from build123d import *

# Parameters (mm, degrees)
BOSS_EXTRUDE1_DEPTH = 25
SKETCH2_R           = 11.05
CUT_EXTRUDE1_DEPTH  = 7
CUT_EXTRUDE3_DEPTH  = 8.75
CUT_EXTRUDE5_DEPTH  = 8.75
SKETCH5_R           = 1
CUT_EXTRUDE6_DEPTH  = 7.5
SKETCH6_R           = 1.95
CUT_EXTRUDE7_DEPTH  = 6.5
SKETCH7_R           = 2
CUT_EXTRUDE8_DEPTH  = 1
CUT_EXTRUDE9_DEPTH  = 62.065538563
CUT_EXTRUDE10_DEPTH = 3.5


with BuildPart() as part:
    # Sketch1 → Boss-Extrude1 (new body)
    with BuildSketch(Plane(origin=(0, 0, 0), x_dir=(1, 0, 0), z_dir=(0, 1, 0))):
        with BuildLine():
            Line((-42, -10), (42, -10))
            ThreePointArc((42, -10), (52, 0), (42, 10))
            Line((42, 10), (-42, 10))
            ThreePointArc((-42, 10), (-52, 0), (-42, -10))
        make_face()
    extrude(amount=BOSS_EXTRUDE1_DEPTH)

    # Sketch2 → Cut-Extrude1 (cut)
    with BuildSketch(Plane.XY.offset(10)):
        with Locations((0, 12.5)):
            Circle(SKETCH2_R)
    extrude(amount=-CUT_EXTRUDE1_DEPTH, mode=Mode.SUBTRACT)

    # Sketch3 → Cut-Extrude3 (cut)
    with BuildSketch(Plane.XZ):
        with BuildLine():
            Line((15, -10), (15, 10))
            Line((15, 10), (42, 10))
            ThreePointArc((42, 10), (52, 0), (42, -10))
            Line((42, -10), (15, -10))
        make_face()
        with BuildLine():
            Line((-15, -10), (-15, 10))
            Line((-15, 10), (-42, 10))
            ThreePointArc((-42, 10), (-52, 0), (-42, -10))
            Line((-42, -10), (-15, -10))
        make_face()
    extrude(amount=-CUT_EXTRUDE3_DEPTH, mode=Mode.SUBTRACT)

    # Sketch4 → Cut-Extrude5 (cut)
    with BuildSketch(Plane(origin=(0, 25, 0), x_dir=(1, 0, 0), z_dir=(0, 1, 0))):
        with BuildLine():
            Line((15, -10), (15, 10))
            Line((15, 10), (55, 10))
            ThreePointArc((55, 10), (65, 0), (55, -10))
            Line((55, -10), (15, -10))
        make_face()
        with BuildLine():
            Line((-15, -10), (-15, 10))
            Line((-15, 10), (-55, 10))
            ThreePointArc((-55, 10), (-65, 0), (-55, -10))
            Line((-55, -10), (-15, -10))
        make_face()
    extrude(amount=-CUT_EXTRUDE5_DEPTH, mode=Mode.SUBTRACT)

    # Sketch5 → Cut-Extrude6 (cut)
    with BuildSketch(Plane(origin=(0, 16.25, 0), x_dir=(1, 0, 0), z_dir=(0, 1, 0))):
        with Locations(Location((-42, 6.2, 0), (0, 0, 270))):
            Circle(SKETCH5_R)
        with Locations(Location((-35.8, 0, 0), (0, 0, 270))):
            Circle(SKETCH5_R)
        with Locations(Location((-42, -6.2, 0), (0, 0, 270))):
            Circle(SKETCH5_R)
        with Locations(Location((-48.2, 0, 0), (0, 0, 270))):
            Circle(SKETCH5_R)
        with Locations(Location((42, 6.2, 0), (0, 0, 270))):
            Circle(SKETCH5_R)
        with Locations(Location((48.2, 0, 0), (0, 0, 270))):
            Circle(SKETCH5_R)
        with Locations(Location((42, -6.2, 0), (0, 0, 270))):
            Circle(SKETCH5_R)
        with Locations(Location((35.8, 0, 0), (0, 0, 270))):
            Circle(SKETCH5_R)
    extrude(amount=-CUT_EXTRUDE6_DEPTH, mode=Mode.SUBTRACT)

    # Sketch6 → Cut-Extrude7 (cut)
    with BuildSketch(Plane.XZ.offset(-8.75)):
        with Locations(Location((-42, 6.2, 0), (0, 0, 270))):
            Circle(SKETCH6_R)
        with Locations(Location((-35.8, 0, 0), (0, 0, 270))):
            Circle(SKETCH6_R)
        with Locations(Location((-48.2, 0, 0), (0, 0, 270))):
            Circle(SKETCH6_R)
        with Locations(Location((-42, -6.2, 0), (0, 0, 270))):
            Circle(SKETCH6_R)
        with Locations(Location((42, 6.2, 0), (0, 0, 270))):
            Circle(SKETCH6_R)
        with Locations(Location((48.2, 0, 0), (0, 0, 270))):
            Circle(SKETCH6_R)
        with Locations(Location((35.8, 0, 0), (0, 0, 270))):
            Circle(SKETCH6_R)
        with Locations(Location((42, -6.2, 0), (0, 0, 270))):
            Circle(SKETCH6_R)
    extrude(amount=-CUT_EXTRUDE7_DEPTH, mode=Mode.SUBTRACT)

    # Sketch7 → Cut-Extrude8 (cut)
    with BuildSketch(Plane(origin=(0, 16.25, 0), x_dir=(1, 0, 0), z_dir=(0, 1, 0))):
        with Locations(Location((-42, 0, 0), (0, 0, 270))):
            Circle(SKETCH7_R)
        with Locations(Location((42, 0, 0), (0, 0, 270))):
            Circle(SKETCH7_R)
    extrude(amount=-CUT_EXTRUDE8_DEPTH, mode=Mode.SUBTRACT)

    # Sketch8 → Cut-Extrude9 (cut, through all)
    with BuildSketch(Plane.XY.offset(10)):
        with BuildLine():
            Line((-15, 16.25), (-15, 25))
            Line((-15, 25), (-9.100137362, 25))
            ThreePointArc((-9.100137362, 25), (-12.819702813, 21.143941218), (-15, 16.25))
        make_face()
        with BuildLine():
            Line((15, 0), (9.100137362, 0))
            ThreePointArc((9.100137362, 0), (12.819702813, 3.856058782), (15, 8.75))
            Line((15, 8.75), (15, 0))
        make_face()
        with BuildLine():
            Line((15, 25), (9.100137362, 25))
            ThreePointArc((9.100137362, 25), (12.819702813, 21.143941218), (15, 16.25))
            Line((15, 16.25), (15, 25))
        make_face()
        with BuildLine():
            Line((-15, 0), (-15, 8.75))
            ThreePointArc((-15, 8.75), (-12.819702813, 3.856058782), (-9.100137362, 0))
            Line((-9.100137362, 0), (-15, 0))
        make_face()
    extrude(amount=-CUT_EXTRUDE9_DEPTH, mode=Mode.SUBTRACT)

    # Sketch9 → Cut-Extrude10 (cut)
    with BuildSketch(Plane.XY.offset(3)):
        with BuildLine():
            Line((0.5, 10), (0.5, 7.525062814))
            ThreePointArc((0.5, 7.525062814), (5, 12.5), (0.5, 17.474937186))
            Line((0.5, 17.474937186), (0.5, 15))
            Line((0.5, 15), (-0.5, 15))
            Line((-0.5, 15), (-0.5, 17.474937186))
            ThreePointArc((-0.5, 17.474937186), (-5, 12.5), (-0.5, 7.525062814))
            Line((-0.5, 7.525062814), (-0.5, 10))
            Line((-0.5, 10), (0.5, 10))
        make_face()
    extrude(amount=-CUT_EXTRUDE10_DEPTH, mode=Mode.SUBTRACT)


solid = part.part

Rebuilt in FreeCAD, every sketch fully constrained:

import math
import FreeCAD as App
import Part
import Sketcher

doc = App.newDocument("Part")
body = doc.addObject("PartDesign::Body", "Body")

sketch1 = body.newObject("Sketcher::SketchObject", "Sketch")
sketch1.AttachmentSupport = (doc.getObject("XZ_Plane"), [""])
sketch1.MapMode = "FlatFace"
sketch1.addGeometry([
    Part.LineSegment(App.Vector(-42, 10, 0), App.Vector(42, 10, 0)),
    Part.ArcOfCircle(Part.Circle(App.Vector(42, 0, 0), App.Vector(0, 0, 1), 10), math.radians(-90), math.radians(90)),
    Part.LineSegment(App.Vector(42, -10, 0), App.Vector(-42, -10, 0)),
    Part.ArcOfCircle(Part.Circle(App.Vector(-42, 0, 0), App.Vector(0, 0, 1), 10), math.radians(90), math.radians(270)),
], False)
sketch1.addConstraint([
    Sketcher.Constraint("Tangent", 0, 2, 1, 2),
    Sketcher.Constraint("Tangent", 1, 1, 2, 1),
    Sketcher.Constraint("Tangent", 2, 2, 3, 2),
    Sketcher.Constraint("Tangent", 3, 1, 0, 1),
    Sketcher.Constraint("Horizontal", 0),
    Sketcher.Constraint("Horizontal", 2),
    Sketcher.Constraint("Symmetric", 1, 3, 3, 3, -1, 1),
    Sketcher.Constraint("Radius", 1, 10.0),
    Sketcher.Constraint("DistanceX", 0, 1, 0, 2, 84.0),
])
pad1 = body.newObject("PartDesign::Pad", "Pad")
pad1.Profile = sketch1
pad1.Length = 25
pad1.Reversed = True

sketch2 = body.newObject("Sketcher::SketchObject", "Sketch001")
sketch2.AttachmentSupport = (doc.getObject("XY_Plane"), [""])
sketch2.MapMode = "FlatFace"
sketch2.AttachmentOffset = App.Placement(App.Vector(0, 0, 10), App.Rotation())
sketch2.addGeometry(Part.Circle(App.Vector(0, 12.5, 0), App.Vector(0, 0, 1), 11.05), False)
sketch2.addConstraint([
    Sketcher.Constraint("PointOnObject", 0, 3, -2),
    Sketcher.Constraint("Diameter", 0, 22.1),
    Sketcher.Constraint("DistanceY", -1, 1, 0, 3, 12.5),
])
pocket1 = body.newObject("PartDesign::Pocket", "Pocket")
pocket1.Profile = sketch2
pocket1.Length = 7

sketch3 = body.newObject("Sketcher::SketchObject", "Sketch002")
sketch3.AttachmentSupport = (doc.getObject("XZ_Plane"), [""])
sketch3.MapMode = "FlatFace"
sketch3.addGeometry([
    Part.LineSegment(App.Vector(15, 10, 0), App.Vector(15, -10, 0)),
    Part.LineSegment(App.Vector(15, -10, 0), App.Vector(42, -10, 0)),
    Part.ArcOfCircle(Part.Circle(App.Vector(42, 0, 0), App.Vector(0, 0, 1), 10), math.radians(-90), math.radians(90)),
    Part.LineSegment(App.Vector(42, 10, 0), App.Vector(15, 10, 0)),
    Part.LineSegment(App.Vector(-15, -10, 0), App.Vector(-15, 10, 0)),
    Part.LineSegment(App.Vector(-15, 10, 0), App.Vector(-42, 10, 0)),
    Part.ArcOfCircle(Part.Circle(App.Vector(-42, 0, 0), App.Vector(0, 0, 1), 10), math.radians(90), math.radians(270)),
    Part.LineSegment(App.Vector(-42, -10, 0), App.Vector(-15, -10, 0)),
], False)
sketch3.addConstraint([
    Sketcher.Constraint("Coincident", 0, 2, 1, 1),
    Sketcher.Constraint("Tangent", 1, 2, 2, 1),
    Sketcher.Constraint("Tangent", 2, 2, 3, 1),
    Sketcher.Constraint("Coincident", 3, 2, 0, 1),
    Sketcher.Constraint("Coincident", 4, 2, 5, 1),
    Sketcher.Constraint("Tangent", 5, 2, 6, 1),
    Sketcher.Constraint("Tangent", 6, 2, 7, 1),
    Sketcher.Constraint("Coincident", 7, 2, 4, 1),
    Sketcher.Constraint("Vertical", 0),
    Sketcher.Constraint("Horizontal", 1),
    Sketcher.Constraint("Horizontal", 3),
    Sketcher.Constraint("Vertical", 4),
    Sketcher.Constraint("Horizontal", 5),
    Sketcher.Constraint("Horizontal", 7),
    Sketcher.Constraint("Equal", 2, 6),
    Sketcher.Constraint("Symmetric", 2, 3, 6, 3, -1, 1),
    Sketcher.Constraint("Symmetric", 3, 2, 4, 2, -2),
    Sketcher.Constraint("Radius", 2, 10.0),
    Sketcher.Constraint("DistanceX", 1, 1, 1, 2, 27.0),
    Sketcher.Constraint("DistanceX", -1, 1, 2, 3, 42.0),
])
pocket2 = body.newObject("PartDesign::Pocket", "Pocket001")
pocket2.Profile = sketch3
pocket2.Length = 8.75

sketch4 = body.newObject("Sketcher::SketchObject", "Sketch003")
sketch4.AttachmentSupport = (doc.getObject("XZ_Plane"), [""])
sketch4.MapMode = "FlatFace"
sketch4.AttachmentOffset = App.Placement(App.Vector(0, 0, -25), App.Rotation())
sketch4.addGeometry([
    Part.LineSegment(App.Vector(15, -10, 0), App.Vector(15, 10, 0)),
    Part.LineSegment(App.Vector(15, 10, 0), App.Vector(55, 10, 0)),
    Part.ArcOfCircle(Part.Circle(App.Vector(55, 0, 0), App.Vector(0, 0, 1), 10), math.radians(-90), math.radians(90)),
    Part.LineSegment(App.Vector(55, -10, 0), App.Vector(15, -10, 0)),
    Part.LineSegment(App.Vector(-15, 10, 0), App.Vector(-15, -10, 0)),
    Part.LineSegment(App.Vector(-15, -10, 0), App.Vector(-55, -10, 0)),
    Part.ArcOfCircle(Part.Circle(App.Vector(-55, 0, 0), App.Vector(0, 0, 1), 10), math.radians(90), math.radians(270)),
    Part.LineSegment(App.Vector(-55, 10, 0), App.Vector(-15, 10, 0)),
], False)
sketch4.addConstraint([
    Sketcher.Constraint("Coincident", 0, 2, 1, 1),
    Sketcher.Constraint("Tangent", 1, 2, 2, 2),
    Sketcher.Constraint("Tangent", 2, 1, 3, 1),
    Sketcher.Constraint("Coincident", 3, 2, 0, 1),
    Sketcher.Constraint("Coincident", 4, 2, 5, 1),
    Sketcher.Constraint("Tangent", 5, 2, 6, 2),
    Sketcher.Constraint("Tangent", 6, 1, 7, 1),
    Sketcher.Constraint("Coincident", 7, 2, 4, 1),
    Sketcher.Constraint("Vertical", 0),
    Sketcher.Constraint("Horizontal", 1),
    Sketcher.Constraint("Horizontal", 3),
    Sketcher.Constraint("Vertical", 4),
    Sketcher.Constraint("Horizontal", 5),
    Sketcher.Constraint("Horizontal", 7),
    Sketcher.Constraint("Equal", 2, 6),
    Sketcher.Constraint("Symmetric", 2, 3, 6, 3, -1, 1),
    Sketcher.Constraint("Symmetric", 3, 2, 4, 2, -2),
    Sketcher.Constraint("Radius", 2, 10.0),
    Sketcher.Constraint("DistanceX", 1, 1, 1, 2, 40.0),
    Sketcher.Constraint("DistanceX", -1, 1, 2, 3, 55.0),
])
pocket3 = body.newObject("PartDesign::Pocket", "Pocket002")
pocket3.Profile = sketch4
pocket3.Length = 8.75
pocket3.Reversed = True

sketch5 = body.newObject("Sketcher::SketchObject", "Sketch004")
sketch5.AttachmentSupport = (doc.getObject("XZ_Plane"), [""])
sketch5.MapMode = "FlatFace"
sketch5.AttachmentOffset = App.Placement(App.Vector(0, 0, -16.25), App.Rotation())
sketch5.addGeometry([
    Part.Circle(App.Vector(-42, -6.2, 0), App.Vector(0, 0, 1), 1),
    Part.Circle(App.Vector(-35.8, 0, 0), App.Vector(0, 0, 1), 1),
    Part.Circle(App.Vector(-42, 6.2, 0), App.Vector(0, 0, 1), 1),
    Part.Circle(App.Vector(-48.2, 0, 0), App.Vector(0, 0, 1), 1),
    Part.Circle(App.Vector(42, -6.2, 0), App.Vector(0, 0, 1), 1),
    Part.Circle(App.Vector(48.2, 0, 0), App.Vector(0, 0, 1), 1),
    Part.Circle(App.Vector(42, 6.2, 0), App.Vector(0, 0, 1), 1),
    Part.Circle(App.Vector(35.8, 0, 0), App.Vector(0, 0, 1), 1),
], False)
sketch5.addConstraint([
    Sketcher.Constraint("Equal", 0, 1),
    Sketcher.Constraint("Equal", 1, 2),
    Sketcher.Constraint("Equal", 2, 3),
    Sketcher.Constraint("Equal", 3, 4),
    Sketcher.Constraint("Equal", 4, 5),
    Sketcher.Constraint("Equal", 5, 6),
    Sketcher.Constraint("Equal", 6, 7),
    Sketcher.Constraint("Symmetric", 2, 3, 4, 3, -1, 1),
    Sketcher.Constraint("Symmetric", 3, 3, 5, 3, -1, 1),
    Sketcher.Constraint("Symmetric", 0, 3, 6, 3, -1, 1),
    Sketcher.Constraint("Symmetric", 1, 3, 7, 3, -1, 1),
    Sketcher.Constraint("Symmetric", 0, 3, 4, 3, -2),
    Sketcher.Constraint("PointOnObject", 1, 3, -1),
    Sketcher.Constraint("PointOnObject", 3, 3, -1),
    Sketcher.Constraint("Diameter", 0, 2.0),
    Sketcher.Constraint("DistanceX", 0, 3, -1, 1, 42.0),
    Sketcher.Constraint("DistanceX", 1, 3, 5, 3, 84.0),
    Sketcher.Constraint("DistanceY", 0, 3, -1, 1, 6.2),
    Sketcher.Constraint("DistanceX", 1, 3, -1, 1, 35.8),
])
pocket4 = body.newObject("PartDesign::Pocket", "Pocket003")
pocket4.Profile = sketch5
pocket4.Length = 7.5
pocket4.Reversed = True

sketch6 = body.newObject("Sketcher::SketchObject", "Sketch005")
sketch6.AttachmentSupport = (doc.getObject("XZ_Plane"), [""])
sketch6.MapMode = "FlatFace"
sketch6.AttachmentOffset = App.Placement(App.Vector(0, 0, -8.75), App.Rotation())
sketch6.addGeometry([
    Part.Circle(App.Vector(-42, 6.2, 0), App.Vector(0, 0, 1), 1.95),
    Part.Circle(App.Vector(-35.8, 0, 0), App.Vector(0, 0, 1), 1.95),
    Part.Circle(App.Vector(-48.2, 0, 0), App.Vector(0, 0, 1), 1.95),
    Part.Circle(App.Vector(-42, -6.2, 0), App.Vector(0, 0, 1), 1.95),
    Part.Circle(App.Vector(42, 6.2, 0), App.Vector(0, 0, 1), 1.95),
    Part.Circle(App.Vector(48.2, 0, 0), App.Vector(0, 0, 1), 1.95),
    Part.Circle(App.Vector(35.8, 0, 0), App.Vector(0, 0, 1), 1.95),
    Part.Circle(App.Vector(42, -6.2, 0), App.Vector(0, 0, 1), 1.95),
], False)
sketch6.addConstraint([
    Sketcher.Constraint("Equal", 0, 1),
    Sketcher.Constraint("Equal", 1, 2),
    Sketcher.Constraint("Equal", 2, 3),
    Sketcher.Constraint("Equal", 3, 4),
    Sketcher.Constraint("Equal", 4, 5),
    Sketcher.Constraint("Equal", 5, 6),
    Sketcher.Constraint("Equal", 6, 7),
    Sketcher.Constraint("Symmetric", 3, 3, 4, 3, -1, 1),
    Sketcher.Constraint("Symmetric", 2, 3, 5, 3, -1, 1),
    Sketcher.Constraint("Symmetric", 1, 3, 6, 3, -1, 1),
    Sketcher.Constraint("Symmetric", 0, 3, 7, 3, -1, 1),
    Sketcher.Constraint("Symmetric", 0, 3, 4, 3, -2),
    Sketcher.Constraint("PointOnObject", 1, 3, -1),
    Sketcher.Constraint("PointOnObject", 2, 3, -1),
    Sketcher.Constraint("Diameter", 0, 3.9),
    Sketcher.Constraint("DistanceX", 0, 3, -1, 1, 42.0),
    Sketcher.Constraint("DistanceX", 1, 3, 5, 3, 84.0),
    Sketcher.Constraint("DistanceY", -1, 1, 0, 3, 6.2),
    Sketcher.Constraint("DistanceX", 1, 3, -1, 1, 35.8),
])
pocket5 = body.newObject("PartDesign::Pocket", "Pocket004")
pocket5.Profile = sketch6
pocket5.Length = 6.5

sketch7 = body.newObject("Sketcher::SketchObject", "Sketch006")
sketch7.AttachmentSupport = (doc.getObject("XZ_Plane"), [""])
sketch7.MapMode = "FlatFace"
sketch7.AttachmentOffset = App.Placement(App.Vector(0, 0, -16.25), App.Rotation())
sketch7.addGeometry([
    Part.Circle(App.Vector(-42, 0, 0), App.Vector(0, 0, 1), 2),
    Part.Circle(App.Vector(42, 0, 0), App.Vector(0, 0, 1), 2),
], False)
sketch7.addConstraint([
    Sketcher.Constraint("Equal", 0, 1),
    Sketcher.Constraint("Symmetric", 0, 3, 1, 3, -1, 1),
    Sketcher.Constraint("PointOnObject", 0, 3, -1),
    Sketcher.Constraint("Diameter", 0, 4.0),
    Sketcher.Constraint("DistanceX", 0, 3, -1, 1, 42.0),
])
pocket6 = body.newObject("PartDesign::Pocket", "Pocket005")
pocket6.Profile = sketch7
pocket6.Length = 1
pocket6.Reversed = True

sketch8 = body.newObject("Sketcher::SketchObject", "Sketch007")
sketch8.AttachmentSupport = (doc.getObject("XY_Plane"), [""])
sketch8.MapMode = "FlatFace"
sketch8.AttachmentOffset = App.Placement(App.Vector(0, 0, 10), App.Rotation())
sketch8.addGeometry([
    Part.LineSegment(App.Vector(-15, 25, 0), App.Vector(-15, 16.25, 0)),
    Part.ArcOfCircle(Part.Circle(App.Vector(0, 12.5, 0), App.Vector(0, 0, 1), 15.461646), math.radians(126.05503), math.radians(165.963757)),
    Part.LineSegment(App.Vector(-9.100137, 25, 0), App.Vector(-15, 25, 0)),
    Part.LineSegment(App.Vector(9.100137, 0, 0), App.Vector(15, 0, 0)),
    Part.LineSegment(App.Vector(15, 0, 0), App.Vector(15, 8.75, 0)),
    Part.ArcOfCircle(Part.Circle(App.Vector(0, 12.5, 0), App.Vector(0, 0, 1), 15.461646), math.radians(-53.94497), math.radians(-14.036243)),
    Part.LineSegment(App.Vector(15, 25, 0), App.Vector(9.100137, 25, 0)),
    Part.ArcOfCircle(Part.Circle(App.Vector(0, 12.5, 0), App.Vector(0, 0, 1), 15.461646), math.radians(14.036243), math.radians(53.94497)),
    Part.LineSegment(App.Vector(15, 16.25, 0), App.Vector(15, 25, 0)),
    Part.LineSegment(App.Vector(-15, 8.75, 0), App.Vector(-15, 0, 0)),
    Part.LineSegment(App.Vector(-15, 0, 0), App.Vector(-9.100137, 0, 0)),
    Part.ArcOfCircle(Part.Circle(App.Vector(0, 12.5, 0), App.Vector(0, 0, 1), 15.461646), math.radians(-165.963757), math.radians(-126.05503)),
], False)
sketch8.addConstraint([
    Sketcher.Constraint("Coincident", 0, 2, 1, 2),
    Sketcher.Constraint("Coincident", 1, 1, 2, 1),
    Sketcher.Constraint("Coincident", 2, 2, 0, 1),
    Sketcher.Constraint("Coincident", 3, 2, 4, 1),
    Sketcher.Constraint("Coincident", 4, 2, 5, 2),
    Sketcher.Constraint("Coincident", 5, 1, 3, 1),
    Sketcher.Constraint("Coincident", 6, 2, 7, 2),
    Sketcher.Constraint("Coincident", 7, 1, 8, 1),
    Sketcher.Constraint("Coincident", 8, 2, 6, 1),
    Sketcher.Constraint("Coincident", 9, 2, 10, 1),
    Sketcher.Constraint("Coincident", 10, 2, 11, 2),
    Sketcher.Constraint("Coincident", 11, 1, 9, 1),
    Sketcher.Constraint("Vertical", 0),
    Sketcher.Constraint("Horizontal", 2),
    Sketcher.Constraint("Horizontal", 3),
    Sketcher.Constraint("Vertical", 4),
    Sketcher.Constraint("Horizontal", 6),
    Sketcher.Constraint("Vertical", 8),
    Sketcher.Constraint("Vertical", 9),
    Sketcher.Constraint("Horizontal", 10),
    Sketcher.Constraint("Coincident", 5, 3, 1, 3),
    Sketcher.Constraint("Coincident", 7, 3, 1, 3),
    Sketcher.Constraint("Coincident", 11, 3, 1, 3),
    Sketcher.Constraint("Equal", 1, 5),
    Sketcher.Constraint("Equal", 5, 7),
    Sketcher.Constraint("Equal", 7, 11),
    Sketcher.Constraint("Symmetric", 3, 2, 9, 2, -1, 1),
    Sketcher.Constraint("Symmetric", 1, 1, 6, 2, -2),
    Sketcher.Constraint("PointOnObject", 3, 2, -1),
    Sketcher.Constraint("Horizontal", 0, 2, 7, 1),
    Sketcher.Constraint("Vertical", 5, 1, 6, 2),
    Sketcher.Constraint("Vertical", 4, 2, 7, 1),
    Sketcher.Constraint("DistanceX", 0, 2, -1, 1, 15.0),
    Sketcher.Constraint("DistanceY", -1, 1, 1, 1, 25.0),
    Sketcher.Constraint("DistanceY", 0, 2, 0, 1, 8.75),
])
pocket7 = body.newObject("PartDesign::Pocket", "Pocket006")
pocket7.Profile = sketch8
pocket7.Type = "ThroughAll"

sketch9 = body.newObject("Sketcher::SketchObject", "Sketch008")
sketch9.AttachmentSupport = (doc.getObject("XY_Plane"), [""])
sketch9.MapMode = "FlatFace"
sketch9.AttachmentOffset = App.Placement(App.Vector(0, 0, 3), App.Rotation())
sketch9.addGeometry([
    Part.LineSegment(App.Vector(0.5, 10, 0), App.Vector(0.5, 7.525063, 0)),
    Part.ArcOfCircle(Part.Circle(App.Vector(0, 12.5, 0), App.Vector(0, 0, 1), 5), math.radians(-84.26083), math.radians(84.26083)),
    Part.LineSegment(App.Vector(0.5, 17.474937, 0), App.Vector(0.5, 15, 0)),
    Part.LineSegment(App.Vector(0.5, 15, 0), App.Vector(-0.5, 15, 0)),
    Part.LineSegment(App.Vector(-0.5, 15, 0), App.Vector(-0.5, 17.474937, 0)),
    Part.ArcOfCircle(Part.Circle(App.Vector(0, 12.5, 0), App.Vector(0, 0, 1), 5), math.radians(95.73917), math.radians(264.26083)),
    Part.LineSegment(App.Vector(-0.5, 7.525063, 0), App.Vector(-0.5, 10, 0)),
    Part.LineSegment(App.Vector(-0.5, 10, 0), App.Vector(0.5, 10, 0)),
], False)
sketch9.addConstraint([
    Sketcher.Constraint("Coincident", 0, 2, 1, 1),
    Sketcher.Constraint("Coincident", 1, 2, 2, 1),
    Sketcher.Constraint("Coincident", 2, 2, 3, 1),
    Sketcher.Constraint("Coincident", 3, 2, 4, 1),
    Sketcher.Constraint("Coincident", 4, 2, 5, 1),
    Sketcher.Constraint("Coincident", 5, 2, 6, 1),
    Sketcher.Constraint("Coincident", 6, 2, 7, 1),
    Sketcher.Constraint("Coincident", 7, 2, 0, 1),
    Sketcher.Constraint("Vertical", 0),
    Sketcher.Constraint("Vertical", 2),
    Sketcher.Constraint("Horizontal", 3),
    Sketcher.Constraint("Vertical", 4),
    Sketcher.Constraint("Vertical", 6),
    Sketcher.Constraint("Horizontal", 7),
    Sketcher.Constraint("Coincident", 5, 3, 1, 3),
    Sketcher.Constraint("Equal", 1, 5),
    Sketcher.Constraint("Symmetric", 1, 2, 4, 2, -2),
    Sketcher.Constraint("Horizontal", 0, 2, 5, 2),
    Sketcher.Constraint("Vertical", 0, 2, 1, 2),
    Sketcher.Constraint("Equal", 0, 2),
    Sketcher.Constraint("Radius", 1, 5.0),
    Sketcher.Constraint("DistanceX", 3, 2, 3, 1, 1.0),
    Sketcher.Constraint("DistanceY", -1, 1, 2, 2, 15.0),
    Sketcher.Constraint("DistanceY", -1, 1, 6, 2, 10.0),
])
pocket8 = body.newObject("PartDesign::Pocket", "Pocket007")
pocket8.Profile = sketch9
pocket8.Length = 3.5

doc.recompute()
